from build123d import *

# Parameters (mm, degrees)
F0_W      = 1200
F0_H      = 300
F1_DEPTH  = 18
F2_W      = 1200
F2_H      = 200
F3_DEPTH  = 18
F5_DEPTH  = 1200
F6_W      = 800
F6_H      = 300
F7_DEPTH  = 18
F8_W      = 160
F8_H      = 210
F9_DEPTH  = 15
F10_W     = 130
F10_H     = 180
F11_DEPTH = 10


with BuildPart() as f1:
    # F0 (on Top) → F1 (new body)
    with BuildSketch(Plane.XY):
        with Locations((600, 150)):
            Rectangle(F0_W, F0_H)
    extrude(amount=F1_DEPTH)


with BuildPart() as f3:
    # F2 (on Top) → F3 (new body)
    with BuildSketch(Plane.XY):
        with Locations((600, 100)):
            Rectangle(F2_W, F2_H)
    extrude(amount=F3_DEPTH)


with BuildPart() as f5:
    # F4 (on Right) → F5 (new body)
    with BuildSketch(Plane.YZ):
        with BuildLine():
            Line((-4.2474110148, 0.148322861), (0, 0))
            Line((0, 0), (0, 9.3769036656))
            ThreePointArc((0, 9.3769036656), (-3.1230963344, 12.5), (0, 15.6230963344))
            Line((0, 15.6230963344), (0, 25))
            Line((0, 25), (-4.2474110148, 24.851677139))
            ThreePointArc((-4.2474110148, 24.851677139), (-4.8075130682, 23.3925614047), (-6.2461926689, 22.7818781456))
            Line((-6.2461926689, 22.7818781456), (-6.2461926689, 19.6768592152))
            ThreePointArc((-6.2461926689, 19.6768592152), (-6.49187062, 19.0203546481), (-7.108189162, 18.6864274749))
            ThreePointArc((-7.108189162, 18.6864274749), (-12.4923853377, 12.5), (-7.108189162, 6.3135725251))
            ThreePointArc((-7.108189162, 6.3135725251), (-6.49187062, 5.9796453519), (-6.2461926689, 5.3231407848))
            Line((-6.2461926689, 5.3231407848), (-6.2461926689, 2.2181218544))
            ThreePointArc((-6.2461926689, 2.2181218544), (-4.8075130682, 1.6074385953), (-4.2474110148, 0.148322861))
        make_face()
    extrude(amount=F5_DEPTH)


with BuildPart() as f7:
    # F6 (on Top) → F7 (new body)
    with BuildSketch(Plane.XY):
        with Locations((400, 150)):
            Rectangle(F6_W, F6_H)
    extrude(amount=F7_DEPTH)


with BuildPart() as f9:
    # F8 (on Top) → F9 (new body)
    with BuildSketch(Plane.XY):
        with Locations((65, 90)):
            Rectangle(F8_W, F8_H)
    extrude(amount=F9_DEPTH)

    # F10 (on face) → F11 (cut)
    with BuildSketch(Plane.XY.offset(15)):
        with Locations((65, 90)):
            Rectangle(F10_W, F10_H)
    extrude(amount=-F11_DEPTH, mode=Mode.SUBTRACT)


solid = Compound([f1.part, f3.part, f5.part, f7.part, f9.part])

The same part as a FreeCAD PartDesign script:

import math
import FreeCAD as App
import Part
import Sketcher
from FreeCAD import Vector
Q = App.Units.Quantity

doc = App.newDocument("Part")
body = doc.addObject("PartDesign::Body", "Body")

# Sketch on XY plane
sketch1 = body.newObject("Sketcher::SketchObject", "Sketch")
sketch1.AttachmentSupport = (doc.getObject("XY_Plane"), [""])
sketch1.MapMode = "FlatFace"
sketch1.addGeometry([
    Part.LineSegment(Vector(0, 300, 0), Vector(0, 0, 0)),
    Part.LineSegment(Vector(0, 0, 0), Vector(1200, 0, 0)),
    Part.LineSegment(Vector(1200, 0, 0), Vector(1200, 300, 0)),
    Part.LineSegment(Vector(1200, 300, 0), Vector(0, 300, 0)),
], False)
sketch1.addConstraint([
    Sketcher.Constraint("Coincident", 0, 2, 1, 1),
    Sketcher.Constraint("Coincident", 1, 2, 2, 1),
    Sketcher.Constraint("Coincident", 2, 2, 3, 1),
    Sketcher.Constraint("Coincident", 3, 2, 0, 1),
    Sketcher.Constraint("Vertical", 0),
    Sketcher.Constraint("Horizontal", 1),
    Sketcher.Constraint("Vertical", 2),
    Sketcher.Constraint("Horizontal", 3),
    Sketcher.Constraint("Coincident", 0, 2, -1, 1),
    Sketcher.Constraint("DistanceX", 1, 1, 1, 2, Q("1200 mm")),
    Sketcher.Constraint("DistanceY", 0, 2, 0, 1, Q("300 mm")),
])
pad1 = body.newObject("PartDesign::Pad", "Pad")
pad1.Profile = sketch1
pad1.Length = 18
body2 = doc.addObject("PartDesign::Body", "Body001")

# Sketch on XY plane
sketch2 = body2.newObject("Sketcher::SketchObject", "Sketch001")
sketch2.AttachmentSupport = (doc.getObject("XY_Plane001"), [""])
sketch2.MapMode = "FlatFace"
sketch2.addGeometry([
    Part.LineSegment(Vector(0, 200, 0), Vector(0, 0, 0)),
    Part.LineSegment(Vector(0, 0, 0), Vector(1200, 0, 0)),
    Part.LineSegment(Vector(1200, 0, 0), Vector(1200, 200, 0)),
    Part.LineSegment(Vector(1200, 200, 0), Vector(0, 200, 0)),
], False)
sketch2.addConstraint([
    Sketcher.Constraint("Coincident", 0, 2, 1, 1),
    Sketcher.Constraint("Coincident", 1, 2, 2, 1),
    Sketcher.Constraint("Coincident", 2, 2, 3, 1),
    Sketcher.Constraint("Coincident", 3, 2, 0, 1),
    Sketcher.Constraint("Vertical", 0),
    Sketcher.Constraint("Horizontal", 1),
    Sketcher.Constraint("Vertical", 2),
    Sketcher.Constraint("Horizontal", 3),
    Sketcher.Constraint("Coincident", 0, 2, -1, 1),
    Sketcher.Constraint("DistanceX", 1, 1, 1, 2, Q("1200 mm")),
    Sketcher.Constraint("DistanceY", 0, 2, 0, 1, Q("200 mm")),
])
pad2 = body2.newObject("PartDesign::Pad", "Pad001")
pad2.Profile = sketch2
pad2.Length = 18
body3 = doc.addObject("PartDesign::Body", "Body002")

# Sketch on YZ plane
sketch3 = body3.newObject("Sketcher::SketchObject", "Sketch002")
sketch3.AttachmentSupport = (doc.getObject("YZ_Plane002"), [""])
sketch3.MapMode = "FlatFace"
sketch3.addGeometry([
    Part.LineSegment(Vector(-4.2, 0.1, 0), Vector(0, 0, 0)),  # 0
    Part.LineSegment(Vector(0, 0, 0), Vector(0, 9.4, 0)),  # 1
    Part.ArcOfCircle(Part.Circle(Vector(0, 12.5, 0), Vector(0, 0, 1), 3.1), math.radians(90), math.radians(270)),  # 2
    Part.LineSegment(Vector(0, 15.6, 0), Vector(0, 25, 0)),  # 3
    Part.LineSegment(Vector(0, 25, 0), Vector(-4.2, 24.9, 0)),  # 4
    Part.ArcOfCircle(Part.Circle(Vector(-6.2, 24.8, 0), Vector(0, 0, 1), 2), math.radians(-90), math.radians(2)),  # 5
    Part.LineSegment(Vector(-6.2, 22.8, 0), Vector(-6.2, 19.7, 0)),  # 6
    Part.ArcOfCircle(Part.Circle(Vector(-7.2, 19.7, 0), Vector(0, 0, 1), 1), math.radians(-82), math.radians(0)),  # 7
    Part.ArcOfCircle(Part.Circle(Vector(-6.2, 12.5, 0), Vector(0, 0, 1), 6.2), math.radians(98), math.radians(262)),  # 8
    Part.ArcOfCircle(Part.Circle(Vector(-7.2, 5.3, 0), Vector(0, 0, 1), 1), math.radians(0), math.radians(82)),  # 9
    Part.LineSegment(Vector(-6.2, 5.3, 0), Vector(-6.2, 2.2, 0)),  # 10
    Part.ArcOfCircle(Part.Circle(Vector(-6.2, 0.2, 0), Vector(0, 0, 1), 2), math.radians(-2), math.radians(90)),  # 11
], False)
sketch3.addConstraint([
    Sketcher.Constraint("Coincident", 0, 2, 1, 1),
    Sketcher.Constraint("Coincident", 1, 2, 2, 2),
    Sketcher.Constraint("Coincident", 2, 1, 3, 1),
    Sketcher.Constraint("Coincident", 3, 2, 4, 1),
    Sketcher.Constraint("Coincident", 4, 2, 5, 2),
    Sketcher.Constraint("Coincident", 5, 1, 6, 1),
    Sketcher.Constraint("Tangent", 6, 2, 7, 2),
    Sketcher.Constraint("Tangent", 7, 1, 8, 1),
    Sketcher.Constraint("Tangent", 8, 2, 9, 2),
    Sketcher.Constraint("Tangent", 9, 1, 10, 1),
    Sketcher.Constraint("Coincident", 10, 2, 11, 2),
    Sketcher.Constraint("Coincident", 11, 1, 0, 1),
    Sketcher.Constraint("Vertical", 1),
    Sketcher.Constraint("Vertical", 3),
    Sketcher.Constraint("Vertical", 6),
    Sketcher.Constraint("Vertical", 10),
    Sketcher.Constraint("Coincident", 0, 2, -1, 1),
    Sketcher.Constraint("Equal", 7, 9),
    Sketcher.Constraint("Equal", 5, 11),
    Sketcher.Constraint("PointOnObject", 2, 3, -2),
    Sketcher.Constraint("PointOnObject", 2, 1, -2),
    Sketcher.Constraint("Horizontal", 2, 3, 8, 3),
    Sketcher.Constraint("Vertical", 5, 3, 8, 3),
    Sketcher.Constraint("Vertical", 7, 3, 9, 3),
    Sketcher.Constraint("Vertical", 8, 3, 11, 3),
    Sketcher.Constraint("Vertical", 11, 3, 5, 1),
    Sketcher.Constraint("Vertical", 4, 2, 11, 1),
    Sketcher.Constraint("Equal", 1, 3),
    Sketcher.Constraint("Equal", 6, 10),
    Sketcher.Constraint("Radius", 5, Q("2 mm")),
    Sketcher.Constraint("Radius", 7, Q("1 mm")),
    Sketcher.Constraint("Angle", 0, Q("-2 deg")),
    Sketcher.Constraint("DistanceY", -1, 1, 3, 2, Q("25 mm")),
    Sketcher.Constraint("Distance", 0, Q("4.25 mm")),
    Sketcher.Constraint("Radius", 2, Q("3.123096 mm")),
    Sketcher.Constraint("Radius", 8, Q("6.246193 mm")),
    Sketcher.Constraint("DistanceY", 6, 2, 6, 1, Q("3.105019 mm")),
])
pad3 = body3.newObject("PartDesign::Pad", "Pad002")
pad3.Profile = sketch3
pad3.Length = 1200
body4 = doc.addObject("PartDesign::Body", "Body003")

# Sketch on XY plane
sketch4 = body4.newObject("Sketcher::SketchObject", "Sketch003")
sketch4.AttachmentSupport = (doc.getObject("XY_Plane003"), [""])
sketch4.MapMode = "FlatFace"
sketch4.addGeometry([
    Part.LineSegment(Vector(0, 300, 0), Vector(0, 0, 0)),
    Part.LineSegment(Vector(0, 0, 0), Vector(800, 0, 0)),
    Part.LineSegment(Vector(800, 0, 0), Vector(800, 300, 0)),
    Part.LineSegment(Vector(800, 300, 0), Vector(0, 300, 0)),
], False)
sketch4.addConstraint([
    Sketcher.Constraint("Coincident", 0, 2, 1, 1),
    Sketcher.Constraint("Coincident", 1, 2, 2, 1),
    Sketcher.Constraint("Coincident", 2, 2, 3, 1),
    Sketcher.Constraint("Coincident", 3, 2, 0, 1),
    Sketcher.Constraint("Vertical", 0),
    Sketcher.Constraint("Horizontal", 1),
    Sketcher.Constraint("Vertical", 2),
    Sketcher.Constraint("Horizontal", 3),
    Sketcher.Constraint("Coincident", 0, 2, -1, 1),
    Sketcher.Constraint("DistanceX", 1, 1, 1, 2, Q("800 mm")),
    Sketcher.Constraint("DistanceY", 0, 2, 0, 1, Q("300 mm")),
])
pad4 = body4.newObject("PartDesign::Pad", "Pad003")
pad4.Profile = sketch4
pad4.Length = 18
body5 = doc.addObject("PartDesign::Body", "Body004")

# Sketch on XY plane
sketch5 = body5.newObject("Sketcher::SketchObject", "Sketch004")
sketch5.AttachmentSupport = (doc.getObject("XY_Plane004"), [""])
sketch5.MapMode = "FlatFace"
sketch5.addGeometry([
    Part.LineSegment(Vector(-15, 195, 0), Vector(-15, -15, 0)),
    Part.LineSegment(Vector(-15, -15, 0), Vector(145, -15, 0)),
    Part.LineSegment(Vector(145, -15, 0), Vector(145, 195, 0)),
    Part.LineSegment(Vector(145, 195, 0), Vector(-15, 195, 0)),
], False)
sketch5.addConstraint([
    Sketcher.Constraint("Coincident", 0, 2, 1, 1),
    Sketcher.Constraint("Coincident", 1, 2, 2, 1),
    Sketcher.Constraint("Coincident", 2, 2, 3, 1),
    Sketcher.Constraint("Coincident", 3, 2, 0, 1),
    Sketcher.Constraint("Vertical", 0),
    Sketcher.Constraint("Horizontal", 1),
    Sketcher.Constraint("Vertical", 2),
    Sketcher.Constraint("Horizontal", 3),
    Sketcher.Constraint("DistanceX", 1, 1, 1, 2, Q("160 mm")),
    Sketcher.Constraint("DistanceY", 0, 2, 0, 1, Q("210 mm")),
    Sketcher.Constraint("DistanceX", 0, 2, -1, 1, Q("15 mm")),
    Sketcher.Constraint("DistanceY", 0, 2, -1, 1, Q("15 mm")),
])
pad5 = body5.newObject("PartDesign::Pad", "Pad004")
pad5.Profile = sketch5
pad5.Length = 15

# Sketch on XY plane
sketch6 = body5.newObject("Sketcher::SketchObject", "Sketch005")
sketch6.AttachmentSupport = (doc.getObject("XY_Plane004"), [""])
sketch6.MapMode = "FlatFace"
sketch6.AttachmentOffset = App.Placement(Vector(0, 0, 15), App.Rotation())
sketch6.addGeometry([
    Part.LineSegment(Vector(0, 180, 0), Vector(0, 0, 0)),
    Part.LineSegment(Vector(0, 0, 0), Vector(130, 0, 0)),
    Part.LineSegment(Vector(130, 0, 0), Vector(130, 180, 0)),
    Part.LineSegment(Vector(130, 180, 0), Vector(0, 180, 0)),
], False)
sketch6.addConstraint([
    Sketcher.Constraint("Coincident", 0, 2, 1, 1),
    Sketcher.Constraint("Coincident", 1, 2, 2, 1),
    Sketcher.Constraint("Coincident", 2, 2, 3, 1),
    Sketcher.Constraint("Coincident", 3, 2, 0, 1),
    Sketcher.Constraint("Vertical", 0),
    Sketcher.Constraint("Horizontal", 1),
    Sketcher.Constraint("Vertical", 2),
    Sketcher.Constraint("Horizontal", 3),
    Sketcher.Constraint("Coincident", 0, 2, -1, 1),
    Sketcher.Constraint("DistanceX", 1, 1, 1, 2, Q("130 mm")),
    Sketcher.Constraint("DistanceY", 0, 2, 0, 1, Q("180 mm")),
])
pocket1 = body5.newObject("PartDesign::Pocket", "Pocket")
pocket1.Profile = sketch6
pocket1.Length = 10

doc.recompute()
